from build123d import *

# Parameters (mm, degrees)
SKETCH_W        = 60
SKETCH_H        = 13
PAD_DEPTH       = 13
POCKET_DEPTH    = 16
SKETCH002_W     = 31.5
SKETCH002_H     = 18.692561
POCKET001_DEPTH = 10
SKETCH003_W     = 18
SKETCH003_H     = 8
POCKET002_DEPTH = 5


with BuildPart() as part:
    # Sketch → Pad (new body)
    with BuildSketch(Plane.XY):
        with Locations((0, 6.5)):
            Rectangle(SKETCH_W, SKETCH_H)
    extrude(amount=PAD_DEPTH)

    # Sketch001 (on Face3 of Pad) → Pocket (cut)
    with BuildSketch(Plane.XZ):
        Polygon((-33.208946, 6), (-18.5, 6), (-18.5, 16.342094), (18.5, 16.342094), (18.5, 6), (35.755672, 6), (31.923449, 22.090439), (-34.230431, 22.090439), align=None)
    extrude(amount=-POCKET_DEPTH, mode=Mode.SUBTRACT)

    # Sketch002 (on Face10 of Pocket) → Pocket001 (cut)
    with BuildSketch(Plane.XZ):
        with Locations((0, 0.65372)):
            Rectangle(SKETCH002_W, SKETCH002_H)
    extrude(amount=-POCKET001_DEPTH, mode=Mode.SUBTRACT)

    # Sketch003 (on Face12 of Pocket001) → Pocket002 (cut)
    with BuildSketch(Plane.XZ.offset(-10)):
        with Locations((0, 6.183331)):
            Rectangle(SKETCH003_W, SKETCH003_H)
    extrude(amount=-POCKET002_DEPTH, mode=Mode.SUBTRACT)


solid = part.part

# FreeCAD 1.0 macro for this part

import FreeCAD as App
import Part
import Sketcher
Q = App.Units.Quantity


def add_polygon(sketch, points):
    """Adds a closed chain of lines whose ends are joined by coincident constraints."""
    first, n = sketch.GeometryCount, len(points)
    for a, b in zip(points, points[1:] + points[:1]):
        sketch.addGeometry(Part.LineSegment(App.Vector(*a, 0), App.Vector(*b, 0)), False)
    for i in range(n):
        sketch.addConstraint(Sketcher.Constraint("Coincident", first + i, 2, first + (i + 1) % n, 1))

doc = App.newDocument("Part")
body = doc.addObject("PartDesign::Body", "Body")

sketch1 = body.newObject("Sketcher::SketchObject", "Sketch")
sketch1.AttachmentSupport = (doc.getObject("XY_Plane"), [""])
sketch1.MapMode = "FlatFace"
add_polygon(sketch1, [(-30, 13), (-30, 0), (30, 0), (30, 13)])
sketch1.addConstraint([
    Sketcher.Constraint("Vertical", 0),
    Sketcher.Constraint("Horizontal", 1),
    Sketcher.Constraint("Vertical", 2),
    Sketcher.Constraint("Horizontal", 3),
    Sketcher.Constraint("Symmetric", 0, 2, 1, 2, -1, 1),
    Sketcher.Constraint("DistanceX", 1, 1, 1, 2, Q("60 mm")),
    Sketcher.Constraint("DistanceY", 0, 2, 0, 1, Q("13 mm")),
])
pad1 = body.newObject("PartDesign::Pad", "Pad")
pad1.Profile = sketch1
pad1.Length = 13

sketch2 = body.newObject("Sketcher::SketchObject", "Sketch001")
sketch2.AttachmentSupport = (doc.getObject("XZ_Plane"), [""])
sketch2.MapMode = "FlatFace"
add_polygon(sketch2, [(-33, 6), (-18, 6), (-18, 16), (18, 16), (18, 6), (36, 6), (32, 22), (-34, 22)])
sketch2.addConstraint([
    Sketcher.Constraint("Horizontal", 0),
    Sketcher.Constraint("Vertical", 1),
    Sketcher.Constraint("Horizontal", 2),
    Sketcher.Constraint("Vertical", 3),
    Sketcher.Constraint("Horizontal", 4),
    Sketcher.Constraint("Horizontal", 6),
    Sketcher.Constraint("Symmetric", 0, 2, 3, 2, -2),
    Sketcher.Constraint("DistanceX", 2, 1, 2, 2, Q("37 mm")),
    Sketcher.Constraint("DistanceY", -1, 1, 0, 2, Q("6 mm")),
    Sketcher.Constraint("Distance", 5, Q("16.540501 mm")),
    Sketcher.Constraint("DistanceX", 4, 1, 4, 2, Q("17.255672 mm")),
    Sketcher.Constraint("DistanceX", 6, 2, 6, 1, Q("66.15388 mm")),
    Sketcher.Constraint("Distance", 7, Q("16.12283 mm")),
    Sketcher.Constraint("DistanceX", 0, 1, 0, 2, Q("14.708946 mm")),
    Sketcher.Constraint("DistanceY", 1, 1, 1, 2, Q("10.342094 mm")),
])
pocket1 = body.newObject("PartDesign::Pocket", "Pocket")
pocket1.Profile = sketch2
pocket1.Length = 16

sketch3 = body.newObject("Sketcher::SketchObject", "Sketch002")
sketch3.AttachmentSupport = (doc.getObject("XZ_Plane"), [""])
sketch3.MapMode = "FlatFace"
add_polygon(sketch3, [(-16, 10), (-16, -9), (16, -9), (16, 10)])
sketch3.addConstraint([
    Sketcher.Constraint("Vertical", 0),
    Sketcher.Constraint("Horizontal", 1),
    Sketcher.Constraint("Vertical", 2),
    Sketcher.Constraint("Horizontal", 3),
    Sketcher.Constraint("DistanceX", 1, 1, 1, 2, Q("31.5 mm")),
    Sketcher.Constraint("DistanceY", -1, 1, 2, 2, Q("10.000001 mm")),
    Sketcher.Constraint("DistanceX", 0, 2, -1, 1, Q("15.75 mm")),
    Sketcher.Constraint("DistanceY", 0, 2, 0, 1, Q("18.692561 mm")),
])
pocket2 = body.newObject("PartDesign::Pocket", "Pocket001")
pocket2.Profile = sketch3
pocket2.Length = 10

sketch4 = body.newObject("Sketcher::SketchObject", "Sketch003")
sketch4.AttachmentSupport = (doc.getObject("XZ_Plane"), [""])
sketch4.MapMode = "FlatFace"
sketch4.AttachmentOffset = App.Placement(App.Vector(0, 0, -10), App.Rotation())
add_polygon(sketch4, [(-9, 10), (-9, 2), (9, 2), (9, 10)])
sketch4.addConstraint([
    Sketcher.Constraint("Vertical", 0),
    Sketcher.Constraint("Horizontal", 1),
    Sketcher.Constraint("Vertical", 2),
    Sketcher.Constraint("Horizontal", 3),
    Sketcher.Constraint("DistanceX", 1, 1, 1, 2, Q("18 mm")),
    Sketcher.Constraint("DistanceY", 0, 2, 0, 1, Q("8 mm")),
    Sketcher.Constraint("DistanceX", 0, 2, -1, 1, Q("9 mm")),
    Sketcher.Constraint("DistanceY", -1, 1, 0, 2, Q("2.183331 mm")),
])
pocket3 = body.newObject("PartDesign::Pocket", "Pocket002")
pocket3.Profile = sketch4
pocket3.Length = 5

doc.recompute()
